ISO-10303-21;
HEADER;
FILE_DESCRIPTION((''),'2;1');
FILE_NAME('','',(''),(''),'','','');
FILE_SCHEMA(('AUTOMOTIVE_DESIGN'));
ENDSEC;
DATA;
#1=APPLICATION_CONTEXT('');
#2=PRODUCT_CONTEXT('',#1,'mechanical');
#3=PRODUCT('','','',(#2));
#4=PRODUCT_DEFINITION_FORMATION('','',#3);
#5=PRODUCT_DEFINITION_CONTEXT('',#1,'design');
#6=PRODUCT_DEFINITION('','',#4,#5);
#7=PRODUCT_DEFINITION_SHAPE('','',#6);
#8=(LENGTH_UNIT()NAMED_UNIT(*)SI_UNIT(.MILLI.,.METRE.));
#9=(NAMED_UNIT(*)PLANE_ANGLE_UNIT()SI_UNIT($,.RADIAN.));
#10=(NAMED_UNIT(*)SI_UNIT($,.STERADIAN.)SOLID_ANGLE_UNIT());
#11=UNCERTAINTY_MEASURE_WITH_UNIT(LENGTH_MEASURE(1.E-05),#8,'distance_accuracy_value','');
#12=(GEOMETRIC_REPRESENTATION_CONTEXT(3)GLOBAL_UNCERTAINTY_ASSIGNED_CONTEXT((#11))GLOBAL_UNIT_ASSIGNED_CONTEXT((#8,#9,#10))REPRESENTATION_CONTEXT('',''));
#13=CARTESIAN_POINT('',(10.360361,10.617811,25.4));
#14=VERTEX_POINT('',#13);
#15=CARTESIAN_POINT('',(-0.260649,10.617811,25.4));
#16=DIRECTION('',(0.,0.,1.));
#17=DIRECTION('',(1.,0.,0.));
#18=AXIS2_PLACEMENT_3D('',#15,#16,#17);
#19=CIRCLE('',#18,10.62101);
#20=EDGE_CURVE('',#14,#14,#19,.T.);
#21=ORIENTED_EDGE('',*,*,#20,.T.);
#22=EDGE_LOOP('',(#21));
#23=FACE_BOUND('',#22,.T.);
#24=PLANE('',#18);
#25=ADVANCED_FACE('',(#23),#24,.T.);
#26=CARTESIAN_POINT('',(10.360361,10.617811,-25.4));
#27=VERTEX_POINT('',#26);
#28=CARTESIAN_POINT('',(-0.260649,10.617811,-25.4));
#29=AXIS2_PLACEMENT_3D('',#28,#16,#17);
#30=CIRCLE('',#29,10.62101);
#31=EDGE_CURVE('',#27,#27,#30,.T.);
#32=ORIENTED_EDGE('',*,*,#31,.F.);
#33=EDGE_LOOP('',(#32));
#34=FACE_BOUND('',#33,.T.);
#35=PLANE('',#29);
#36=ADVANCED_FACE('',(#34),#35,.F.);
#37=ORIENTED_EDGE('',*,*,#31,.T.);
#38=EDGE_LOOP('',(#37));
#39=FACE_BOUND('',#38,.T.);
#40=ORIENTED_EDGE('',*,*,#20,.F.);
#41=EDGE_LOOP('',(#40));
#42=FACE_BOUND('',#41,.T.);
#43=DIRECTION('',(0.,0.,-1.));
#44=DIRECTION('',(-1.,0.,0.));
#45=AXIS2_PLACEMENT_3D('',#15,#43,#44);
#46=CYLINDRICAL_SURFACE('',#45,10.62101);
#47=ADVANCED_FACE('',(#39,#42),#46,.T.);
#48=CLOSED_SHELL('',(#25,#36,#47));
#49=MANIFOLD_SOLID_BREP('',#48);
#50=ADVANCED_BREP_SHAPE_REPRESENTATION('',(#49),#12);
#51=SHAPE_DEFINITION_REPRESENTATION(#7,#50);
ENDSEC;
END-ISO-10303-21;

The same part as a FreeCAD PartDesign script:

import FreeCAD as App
import Part
import Sketcher
from FreeCAD import Vector
Q = App.Units.Quantity

doc = App.newDocument("Part")
body = doc.addObject("PartDesign::Body", "Body")

sketch1 = body.newObject("Sketcher::SketchObject", "Sketch")
sketch1.AttachmentSupport = (doc.getObject("XY_Plane"), [""])
sketch1.MapMode = "FlatFace"
sketch1.addGeometry(Part.Circle(Vector(0, 11, 0), Vector(0, 0, 1), 11), False)
sketch1.addConstraint(Sketcher.Constraint("Diameter", 0, Q("0.8363 in")))
sketch1.addConstraint(Sketcher.Constraint("DistanceX", 0, 3, -1, 1, Q("0.260649 mm")))
sketch1.addConstraint(Sketcher.Constraint("DistanceY", -1, 1, 0, 3, Q("10.617811 mm")))
pad1 = body.newObject("PartDesign::Pad", "Pad")
pad1.Profile = sketch1
pad1.Length = Q("2 in")
pad1.Midplane = True

doc.recompute()
